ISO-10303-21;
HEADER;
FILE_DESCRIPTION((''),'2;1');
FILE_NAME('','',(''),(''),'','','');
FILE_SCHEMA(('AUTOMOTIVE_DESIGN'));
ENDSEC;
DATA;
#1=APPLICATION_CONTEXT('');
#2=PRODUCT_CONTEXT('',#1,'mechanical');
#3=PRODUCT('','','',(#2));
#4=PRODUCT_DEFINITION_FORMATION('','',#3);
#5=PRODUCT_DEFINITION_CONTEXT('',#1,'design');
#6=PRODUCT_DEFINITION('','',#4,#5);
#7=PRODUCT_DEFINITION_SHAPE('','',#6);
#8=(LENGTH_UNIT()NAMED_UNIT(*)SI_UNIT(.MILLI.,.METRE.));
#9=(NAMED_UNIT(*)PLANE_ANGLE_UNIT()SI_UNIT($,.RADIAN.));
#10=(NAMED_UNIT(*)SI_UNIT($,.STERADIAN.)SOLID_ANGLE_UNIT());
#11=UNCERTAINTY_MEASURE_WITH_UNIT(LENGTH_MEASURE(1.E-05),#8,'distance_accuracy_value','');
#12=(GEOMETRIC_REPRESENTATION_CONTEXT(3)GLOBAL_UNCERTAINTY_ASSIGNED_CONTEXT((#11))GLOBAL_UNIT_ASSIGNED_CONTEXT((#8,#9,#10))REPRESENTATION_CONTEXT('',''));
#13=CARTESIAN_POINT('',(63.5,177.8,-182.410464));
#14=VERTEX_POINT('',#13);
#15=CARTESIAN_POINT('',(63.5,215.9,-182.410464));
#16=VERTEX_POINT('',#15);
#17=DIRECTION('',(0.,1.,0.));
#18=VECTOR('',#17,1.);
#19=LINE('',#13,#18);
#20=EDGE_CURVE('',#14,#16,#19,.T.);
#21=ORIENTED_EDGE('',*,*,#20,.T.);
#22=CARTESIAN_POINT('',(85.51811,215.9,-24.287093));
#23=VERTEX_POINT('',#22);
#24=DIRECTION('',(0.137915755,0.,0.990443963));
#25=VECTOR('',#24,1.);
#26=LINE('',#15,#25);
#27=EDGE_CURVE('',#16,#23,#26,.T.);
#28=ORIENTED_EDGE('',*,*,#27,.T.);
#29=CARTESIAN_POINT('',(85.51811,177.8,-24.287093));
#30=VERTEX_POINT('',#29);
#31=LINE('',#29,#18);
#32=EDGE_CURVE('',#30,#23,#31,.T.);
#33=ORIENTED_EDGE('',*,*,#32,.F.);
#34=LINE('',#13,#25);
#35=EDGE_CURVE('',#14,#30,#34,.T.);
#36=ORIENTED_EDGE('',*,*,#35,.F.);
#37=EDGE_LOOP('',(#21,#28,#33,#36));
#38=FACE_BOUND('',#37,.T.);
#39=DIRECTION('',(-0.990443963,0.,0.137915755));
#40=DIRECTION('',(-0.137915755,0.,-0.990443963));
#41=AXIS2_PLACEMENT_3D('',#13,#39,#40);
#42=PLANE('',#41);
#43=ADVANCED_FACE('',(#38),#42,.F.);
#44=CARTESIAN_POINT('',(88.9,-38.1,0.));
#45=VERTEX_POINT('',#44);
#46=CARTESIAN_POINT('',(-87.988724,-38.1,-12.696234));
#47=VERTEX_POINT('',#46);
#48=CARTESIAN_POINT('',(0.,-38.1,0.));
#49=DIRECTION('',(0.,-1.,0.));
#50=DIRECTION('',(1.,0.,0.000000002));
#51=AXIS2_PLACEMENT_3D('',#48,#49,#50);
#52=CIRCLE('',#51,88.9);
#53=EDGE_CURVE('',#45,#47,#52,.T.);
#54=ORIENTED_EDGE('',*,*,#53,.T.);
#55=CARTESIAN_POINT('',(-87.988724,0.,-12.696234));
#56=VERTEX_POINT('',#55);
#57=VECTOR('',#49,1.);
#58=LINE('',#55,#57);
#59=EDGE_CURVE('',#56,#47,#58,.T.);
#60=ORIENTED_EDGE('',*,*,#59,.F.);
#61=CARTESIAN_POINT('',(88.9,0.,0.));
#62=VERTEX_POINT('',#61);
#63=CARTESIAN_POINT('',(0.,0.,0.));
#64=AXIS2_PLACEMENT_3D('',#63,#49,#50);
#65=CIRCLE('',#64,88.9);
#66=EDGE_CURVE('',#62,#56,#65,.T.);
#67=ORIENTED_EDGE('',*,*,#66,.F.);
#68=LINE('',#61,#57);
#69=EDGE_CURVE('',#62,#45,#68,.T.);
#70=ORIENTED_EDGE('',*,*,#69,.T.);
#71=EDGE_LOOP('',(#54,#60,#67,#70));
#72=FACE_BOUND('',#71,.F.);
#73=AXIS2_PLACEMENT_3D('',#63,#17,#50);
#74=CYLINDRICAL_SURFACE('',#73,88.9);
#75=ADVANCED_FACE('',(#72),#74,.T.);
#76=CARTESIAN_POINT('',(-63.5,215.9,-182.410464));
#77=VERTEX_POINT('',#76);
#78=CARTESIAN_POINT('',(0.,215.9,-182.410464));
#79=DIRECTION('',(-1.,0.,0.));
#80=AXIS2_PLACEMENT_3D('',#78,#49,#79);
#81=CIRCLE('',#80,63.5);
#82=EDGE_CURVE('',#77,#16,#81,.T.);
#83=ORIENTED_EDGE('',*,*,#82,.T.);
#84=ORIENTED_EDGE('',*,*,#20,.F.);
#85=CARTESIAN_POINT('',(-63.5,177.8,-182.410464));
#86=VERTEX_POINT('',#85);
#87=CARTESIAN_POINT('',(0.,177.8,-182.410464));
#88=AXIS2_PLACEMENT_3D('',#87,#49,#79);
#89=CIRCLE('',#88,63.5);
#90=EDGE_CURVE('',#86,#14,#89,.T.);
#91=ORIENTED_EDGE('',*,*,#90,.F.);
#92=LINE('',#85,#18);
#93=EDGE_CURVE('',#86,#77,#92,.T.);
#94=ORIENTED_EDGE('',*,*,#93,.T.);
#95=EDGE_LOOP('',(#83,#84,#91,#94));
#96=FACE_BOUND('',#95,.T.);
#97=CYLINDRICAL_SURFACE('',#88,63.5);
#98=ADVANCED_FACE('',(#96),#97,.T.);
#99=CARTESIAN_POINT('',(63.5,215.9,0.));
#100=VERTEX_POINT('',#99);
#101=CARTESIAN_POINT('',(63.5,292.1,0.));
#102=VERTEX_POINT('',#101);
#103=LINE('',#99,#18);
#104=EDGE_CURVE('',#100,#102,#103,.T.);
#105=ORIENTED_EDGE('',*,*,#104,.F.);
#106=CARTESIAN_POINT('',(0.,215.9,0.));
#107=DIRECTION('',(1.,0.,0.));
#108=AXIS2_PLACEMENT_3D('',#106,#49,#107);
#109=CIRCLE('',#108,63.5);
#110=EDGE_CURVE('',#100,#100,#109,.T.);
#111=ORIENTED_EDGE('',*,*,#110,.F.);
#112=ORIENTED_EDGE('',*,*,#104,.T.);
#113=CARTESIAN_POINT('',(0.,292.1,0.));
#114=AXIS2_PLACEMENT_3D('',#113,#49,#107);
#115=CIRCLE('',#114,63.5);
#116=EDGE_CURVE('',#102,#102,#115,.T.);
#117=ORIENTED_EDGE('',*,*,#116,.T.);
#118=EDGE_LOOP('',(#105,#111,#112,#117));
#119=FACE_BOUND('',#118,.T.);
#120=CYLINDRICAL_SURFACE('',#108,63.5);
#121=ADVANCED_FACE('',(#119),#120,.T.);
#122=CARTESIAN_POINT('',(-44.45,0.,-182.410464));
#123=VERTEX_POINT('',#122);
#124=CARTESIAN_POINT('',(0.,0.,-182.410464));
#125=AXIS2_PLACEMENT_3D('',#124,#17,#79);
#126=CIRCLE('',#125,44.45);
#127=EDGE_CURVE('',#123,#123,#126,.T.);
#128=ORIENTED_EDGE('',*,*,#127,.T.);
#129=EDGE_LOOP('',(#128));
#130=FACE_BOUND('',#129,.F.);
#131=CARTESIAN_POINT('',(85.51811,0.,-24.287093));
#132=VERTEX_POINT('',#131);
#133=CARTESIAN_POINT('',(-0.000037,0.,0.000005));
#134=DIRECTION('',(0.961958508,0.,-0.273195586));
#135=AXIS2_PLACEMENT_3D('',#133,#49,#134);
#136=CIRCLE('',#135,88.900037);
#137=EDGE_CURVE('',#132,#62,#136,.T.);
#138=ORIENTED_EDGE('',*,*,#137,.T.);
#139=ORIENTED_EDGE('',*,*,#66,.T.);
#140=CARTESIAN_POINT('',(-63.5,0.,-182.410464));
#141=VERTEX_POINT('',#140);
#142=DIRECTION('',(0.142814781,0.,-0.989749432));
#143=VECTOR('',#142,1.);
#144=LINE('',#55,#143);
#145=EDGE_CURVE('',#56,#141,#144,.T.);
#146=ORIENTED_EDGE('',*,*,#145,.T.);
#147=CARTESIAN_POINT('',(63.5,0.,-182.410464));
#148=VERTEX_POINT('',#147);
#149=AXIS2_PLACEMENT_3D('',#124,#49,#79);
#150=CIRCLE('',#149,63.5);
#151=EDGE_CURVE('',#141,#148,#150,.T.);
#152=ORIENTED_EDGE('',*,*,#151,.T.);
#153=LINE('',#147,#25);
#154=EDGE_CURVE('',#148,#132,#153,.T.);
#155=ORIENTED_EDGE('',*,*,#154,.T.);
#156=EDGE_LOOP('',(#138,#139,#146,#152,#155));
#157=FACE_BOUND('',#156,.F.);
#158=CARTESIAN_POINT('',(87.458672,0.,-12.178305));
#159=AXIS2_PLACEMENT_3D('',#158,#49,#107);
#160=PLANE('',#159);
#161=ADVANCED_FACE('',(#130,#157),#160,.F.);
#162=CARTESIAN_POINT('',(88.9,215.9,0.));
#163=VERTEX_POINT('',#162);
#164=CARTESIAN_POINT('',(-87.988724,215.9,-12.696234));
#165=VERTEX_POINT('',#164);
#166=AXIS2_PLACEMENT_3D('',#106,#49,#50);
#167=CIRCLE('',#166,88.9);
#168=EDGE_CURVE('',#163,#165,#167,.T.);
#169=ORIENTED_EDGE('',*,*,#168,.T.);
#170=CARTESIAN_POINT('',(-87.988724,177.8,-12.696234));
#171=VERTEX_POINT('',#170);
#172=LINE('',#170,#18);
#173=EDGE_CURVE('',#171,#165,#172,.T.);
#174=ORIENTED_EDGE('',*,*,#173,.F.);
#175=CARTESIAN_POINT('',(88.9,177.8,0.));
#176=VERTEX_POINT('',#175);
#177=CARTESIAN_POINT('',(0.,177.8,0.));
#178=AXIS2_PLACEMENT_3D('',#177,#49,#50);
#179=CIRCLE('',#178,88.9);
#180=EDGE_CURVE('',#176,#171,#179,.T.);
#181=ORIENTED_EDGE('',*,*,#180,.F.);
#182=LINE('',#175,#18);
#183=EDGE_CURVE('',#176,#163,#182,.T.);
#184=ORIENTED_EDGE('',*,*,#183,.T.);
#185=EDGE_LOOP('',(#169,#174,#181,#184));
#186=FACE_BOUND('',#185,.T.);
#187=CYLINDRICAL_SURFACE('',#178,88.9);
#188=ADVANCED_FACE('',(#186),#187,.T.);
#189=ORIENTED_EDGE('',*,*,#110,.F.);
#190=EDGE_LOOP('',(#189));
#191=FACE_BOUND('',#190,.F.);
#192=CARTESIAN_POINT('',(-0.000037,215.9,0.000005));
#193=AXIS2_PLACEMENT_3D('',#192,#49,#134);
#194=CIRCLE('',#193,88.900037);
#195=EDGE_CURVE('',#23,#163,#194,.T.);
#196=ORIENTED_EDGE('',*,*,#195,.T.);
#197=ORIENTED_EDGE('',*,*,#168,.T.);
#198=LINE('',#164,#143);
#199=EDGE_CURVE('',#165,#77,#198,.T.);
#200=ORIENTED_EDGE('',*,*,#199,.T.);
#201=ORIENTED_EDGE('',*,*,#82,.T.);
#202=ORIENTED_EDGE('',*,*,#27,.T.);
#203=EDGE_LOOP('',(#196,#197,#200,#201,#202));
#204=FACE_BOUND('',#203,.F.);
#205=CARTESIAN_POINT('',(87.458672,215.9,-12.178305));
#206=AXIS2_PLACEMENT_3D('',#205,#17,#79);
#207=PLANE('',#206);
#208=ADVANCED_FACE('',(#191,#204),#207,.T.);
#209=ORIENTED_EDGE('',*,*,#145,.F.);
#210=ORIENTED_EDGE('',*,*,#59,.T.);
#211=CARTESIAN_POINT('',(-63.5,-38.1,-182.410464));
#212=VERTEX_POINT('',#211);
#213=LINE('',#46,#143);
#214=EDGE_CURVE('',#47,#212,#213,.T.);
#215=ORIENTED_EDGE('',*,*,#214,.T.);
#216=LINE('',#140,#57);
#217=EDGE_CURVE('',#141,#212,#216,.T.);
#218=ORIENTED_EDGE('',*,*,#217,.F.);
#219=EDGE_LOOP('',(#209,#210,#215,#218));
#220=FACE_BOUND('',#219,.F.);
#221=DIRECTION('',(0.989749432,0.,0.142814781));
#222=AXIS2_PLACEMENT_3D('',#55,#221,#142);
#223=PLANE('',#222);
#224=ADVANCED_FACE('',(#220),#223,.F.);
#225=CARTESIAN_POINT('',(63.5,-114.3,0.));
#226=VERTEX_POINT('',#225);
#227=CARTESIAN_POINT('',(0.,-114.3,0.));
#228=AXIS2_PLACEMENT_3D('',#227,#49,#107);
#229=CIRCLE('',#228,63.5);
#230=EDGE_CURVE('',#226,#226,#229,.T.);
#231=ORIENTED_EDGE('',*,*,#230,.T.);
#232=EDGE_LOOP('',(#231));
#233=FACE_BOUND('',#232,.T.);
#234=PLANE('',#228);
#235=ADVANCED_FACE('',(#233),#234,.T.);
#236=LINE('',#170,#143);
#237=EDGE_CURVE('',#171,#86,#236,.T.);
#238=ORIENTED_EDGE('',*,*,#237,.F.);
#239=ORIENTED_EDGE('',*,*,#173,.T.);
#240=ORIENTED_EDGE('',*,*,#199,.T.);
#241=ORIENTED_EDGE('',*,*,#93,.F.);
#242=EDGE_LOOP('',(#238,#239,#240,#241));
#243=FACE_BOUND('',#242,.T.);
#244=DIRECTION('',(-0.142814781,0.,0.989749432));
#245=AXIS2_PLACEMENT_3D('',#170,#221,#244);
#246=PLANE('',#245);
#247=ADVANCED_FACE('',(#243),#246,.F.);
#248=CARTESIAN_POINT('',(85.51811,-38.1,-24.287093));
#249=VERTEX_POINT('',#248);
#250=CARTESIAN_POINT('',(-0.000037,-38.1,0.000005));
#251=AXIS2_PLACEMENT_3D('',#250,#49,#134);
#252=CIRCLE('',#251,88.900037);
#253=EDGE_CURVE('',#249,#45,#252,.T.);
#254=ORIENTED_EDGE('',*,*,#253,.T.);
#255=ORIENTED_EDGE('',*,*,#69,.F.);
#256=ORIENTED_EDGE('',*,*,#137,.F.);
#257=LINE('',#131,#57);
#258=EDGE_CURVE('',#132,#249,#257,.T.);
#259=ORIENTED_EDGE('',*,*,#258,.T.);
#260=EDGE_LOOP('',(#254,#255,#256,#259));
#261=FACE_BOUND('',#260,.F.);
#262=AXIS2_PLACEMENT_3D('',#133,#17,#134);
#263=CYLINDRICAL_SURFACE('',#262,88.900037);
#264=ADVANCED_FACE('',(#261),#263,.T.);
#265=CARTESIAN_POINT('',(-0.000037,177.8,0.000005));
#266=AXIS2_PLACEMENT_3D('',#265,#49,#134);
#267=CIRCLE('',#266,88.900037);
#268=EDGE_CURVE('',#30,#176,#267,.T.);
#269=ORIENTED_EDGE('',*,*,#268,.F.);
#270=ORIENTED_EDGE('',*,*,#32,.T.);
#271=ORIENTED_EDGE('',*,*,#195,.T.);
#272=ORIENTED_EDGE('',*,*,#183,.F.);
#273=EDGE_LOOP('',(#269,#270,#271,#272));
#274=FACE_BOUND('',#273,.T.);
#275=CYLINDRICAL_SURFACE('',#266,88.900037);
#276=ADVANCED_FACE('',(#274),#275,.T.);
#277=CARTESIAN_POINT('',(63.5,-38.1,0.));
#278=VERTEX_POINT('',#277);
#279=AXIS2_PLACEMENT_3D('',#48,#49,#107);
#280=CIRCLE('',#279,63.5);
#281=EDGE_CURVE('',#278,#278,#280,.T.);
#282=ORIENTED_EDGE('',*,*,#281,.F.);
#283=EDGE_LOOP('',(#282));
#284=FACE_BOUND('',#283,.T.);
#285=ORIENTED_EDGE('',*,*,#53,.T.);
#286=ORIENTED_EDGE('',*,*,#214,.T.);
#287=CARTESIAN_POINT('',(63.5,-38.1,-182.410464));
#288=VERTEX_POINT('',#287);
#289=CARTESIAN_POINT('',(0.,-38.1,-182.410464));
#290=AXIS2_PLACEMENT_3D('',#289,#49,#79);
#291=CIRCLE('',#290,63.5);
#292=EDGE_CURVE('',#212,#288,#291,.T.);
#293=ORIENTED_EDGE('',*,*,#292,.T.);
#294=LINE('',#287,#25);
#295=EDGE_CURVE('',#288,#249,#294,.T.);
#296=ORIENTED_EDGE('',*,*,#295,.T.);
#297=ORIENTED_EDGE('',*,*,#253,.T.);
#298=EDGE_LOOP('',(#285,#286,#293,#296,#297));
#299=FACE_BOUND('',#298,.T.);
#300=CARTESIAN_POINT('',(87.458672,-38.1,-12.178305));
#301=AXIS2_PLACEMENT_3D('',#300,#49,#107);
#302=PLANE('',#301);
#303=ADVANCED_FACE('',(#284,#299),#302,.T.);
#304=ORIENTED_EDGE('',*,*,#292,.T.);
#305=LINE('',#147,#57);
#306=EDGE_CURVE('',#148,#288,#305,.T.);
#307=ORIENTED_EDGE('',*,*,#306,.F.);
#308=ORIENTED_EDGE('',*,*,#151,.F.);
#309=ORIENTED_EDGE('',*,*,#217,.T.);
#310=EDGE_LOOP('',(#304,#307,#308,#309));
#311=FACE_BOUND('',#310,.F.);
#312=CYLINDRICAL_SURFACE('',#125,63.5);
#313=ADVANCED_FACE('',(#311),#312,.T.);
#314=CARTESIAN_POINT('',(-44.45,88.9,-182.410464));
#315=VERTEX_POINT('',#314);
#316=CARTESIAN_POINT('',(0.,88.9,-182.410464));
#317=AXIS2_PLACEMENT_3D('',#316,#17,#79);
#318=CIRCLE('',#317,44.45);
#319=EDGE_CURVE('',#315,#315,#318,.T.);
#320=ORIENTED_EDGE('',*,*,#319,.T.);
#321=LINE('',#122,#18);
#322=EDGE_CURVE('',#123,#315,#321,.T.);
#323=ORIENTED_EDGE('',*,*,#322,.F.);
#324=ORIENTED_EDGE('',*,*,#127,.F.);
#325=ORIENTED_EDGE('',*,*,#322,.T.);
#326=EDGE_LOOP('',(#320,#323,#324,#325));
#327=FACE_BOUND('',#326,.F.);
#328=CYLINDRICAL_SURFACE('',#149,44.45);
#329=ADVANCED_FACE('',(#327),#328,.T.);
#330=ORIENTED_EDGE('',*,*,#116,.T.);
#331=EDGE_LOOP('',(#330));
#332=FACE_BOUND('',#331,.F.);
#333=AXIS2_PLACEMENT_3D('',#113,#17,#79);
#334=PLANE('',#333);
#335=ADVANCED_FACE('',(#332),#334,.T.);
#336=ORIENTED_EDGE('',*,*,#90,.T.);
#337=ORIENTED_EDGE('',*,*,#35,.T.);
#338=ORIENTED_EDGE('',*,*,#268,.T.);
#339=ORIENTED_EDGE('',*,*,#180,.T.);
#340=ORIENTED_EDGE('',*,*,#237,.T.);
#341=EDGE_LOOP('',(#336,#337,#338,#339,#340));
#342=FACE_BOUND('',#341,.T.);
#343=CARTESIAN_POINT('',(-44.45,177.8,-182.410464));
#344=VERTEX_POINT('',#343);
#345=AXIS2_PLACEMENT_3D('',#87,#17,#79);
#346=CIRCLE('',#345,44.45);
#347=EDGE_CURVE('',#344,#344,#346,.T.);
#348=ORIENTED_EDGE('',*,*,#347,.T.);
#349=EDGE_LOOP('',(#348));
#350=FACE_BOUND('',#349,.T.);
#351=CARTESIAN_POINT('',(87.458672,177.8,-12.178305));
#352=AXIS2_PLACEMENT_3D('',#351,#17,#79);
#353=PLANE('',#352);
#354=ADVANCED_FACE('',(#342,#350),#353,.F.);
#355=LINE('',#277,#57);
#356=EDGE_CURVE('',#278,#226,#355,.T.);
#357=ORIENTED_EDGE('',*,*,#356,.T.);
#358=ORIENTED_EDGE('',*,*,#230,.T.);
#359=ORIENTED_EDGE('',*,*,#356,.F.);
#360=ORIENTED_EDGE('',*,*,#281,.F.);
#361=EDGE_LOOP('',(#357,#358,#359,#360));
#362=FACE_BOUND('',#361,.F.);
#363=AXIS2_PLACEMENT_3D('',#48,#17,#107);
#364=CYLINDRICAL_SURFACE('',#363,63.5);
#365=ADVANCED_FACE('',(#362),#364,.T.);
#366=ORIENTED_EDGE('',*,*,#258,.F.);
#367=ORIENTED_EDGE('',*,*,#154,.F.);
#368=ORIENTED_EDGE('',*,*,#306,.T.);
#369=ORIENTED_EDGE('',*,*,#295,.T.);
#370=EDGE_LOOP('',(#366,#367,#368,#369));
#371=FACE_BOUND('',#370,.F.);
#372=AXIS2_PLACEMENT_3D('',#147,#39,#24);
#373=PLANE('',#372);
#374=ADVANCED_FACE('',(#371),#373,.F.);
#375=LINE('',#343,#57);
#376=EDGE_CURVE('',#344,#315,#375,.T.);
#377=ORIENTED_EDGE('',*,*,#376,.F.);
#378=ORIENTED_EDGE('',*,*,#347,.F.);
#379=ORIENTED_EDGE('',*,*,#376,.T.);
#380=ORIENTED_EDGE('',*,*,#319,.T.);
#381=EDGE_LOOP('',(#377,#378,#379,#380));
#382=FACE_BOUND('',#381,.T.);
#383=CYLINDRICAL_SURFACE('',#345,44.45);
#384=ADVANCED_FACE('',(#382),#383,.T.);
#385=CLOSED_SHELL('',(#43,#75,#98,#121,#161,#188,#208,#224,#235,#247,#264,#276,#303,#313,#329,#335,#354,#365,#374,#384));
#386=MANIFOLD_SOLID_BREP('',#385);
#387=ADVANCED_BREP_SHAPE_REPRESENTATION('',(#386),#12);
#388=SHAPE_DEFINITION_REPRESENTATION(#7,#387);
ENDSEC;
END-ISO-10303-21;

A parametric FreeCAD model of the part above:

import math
import FreeCAD as App
import Part
import Sketcher

V = App.Vector
Q = App.Units.Quantity

doc = App.newDocument("Part")
body = doc.addObject("PartDesign::Body", "Body")

sketch1 = body.newObject("Sketcher::SketchObject", "Sketch")
sketch1.AttachmentSupport = (doc.getObject("XZ_Plane"), [""])
sketch1.MapMode = "FlatFace"
sketch1.addGeometry([
    Part.ArcOfCircle(Part.Circle(V(0, 0, 0), V(0, 0, 1), 89), math.radians(-15.85), math.radians(0)),
    Part.ArcOfCircle(Part.Circle(V(0, 0, 0), V(0, 0, 1), 89), math.radians(0), math.radians(188)),
    Part.LineSegment(V(-88, -13, 0), V(-64, -182, 0)),
    Part.ArcOfCircle(Part.Circle(V(0, -182, 0), V(0, 0, 1), 64), math.radians(180), math.radians(360)),
    Part.LineSegment(V(64, -182, 0), V(86, -24, 0)),
], False)
sketch1.addConstraint([
    Sketcher.Constraint("Tangent", 0, 2, 1, 1),
    Sketcher.Constraint("Tangent", 1, 2, 2, 1),
    Sketcher.Constraint("Coincident", 2, 2, 3, 1),
    Sketcher.Constraint("Coincident", 3, 2, 4, 1),
    Sketcher.Constraint("Coincident", 4, 2, 0, 1),
    Sketcher.Constraint("Coincident", 1, 3, -1, 1),
    Sketcher.Constraint("Symmetric", 2, 2, 3, 2, -2),
    Sketcher.Constraint("PointOnObject", 0, 2, -1),
    Sketcher.Constraint("Horizontal", 3, 3, 2, 2),
    Sketcher.Constraint("Radius", 1, Q("3.5 in")),
    Sketcher.Constraint("Radius", 3, Q("2.5 in")),
    Sketcher.Constraint("Radius", 0, Q("88.900037 mm")),
    Sketcher.Constraint("DistanceX", -1, 1, 4, 2, Q("85.51811 mm")),
    Sketcher.Constraint("DistanceY", 3, 3, 0, 3, Q("182.410469 mm")),
])
pad1 = body.newObject("PartDesign::Pad", "Pad")
pad1.Profile = sketch1
pad1.Length = Q("1.5 in")

sketch2 = body.newObject("Sketcher::SketchObject", "Sketch001")
sketch2.AttachmentSupport = (doc.getObject("XZ_Plane"), [""])
sketch2.MapMode = "FlatFace"
sketch2.AttachmentOffset = App.Placement(V(0, 0, 1.5 * 25.4), App.Rotation())
sketch2.addGeometry(Part.Circle(V(0, 0, 0), V(0, 0, 1), 64), False)
sketch2.addConstraint([
    Sketcher.Constraint("Coincident", 0, 3, -1, 1),
    Sketcher.Constraint("Diameter", 0, Q("5 in")),
])
pad2 = body.newObject("PartDesign::Pad", "Pad001")
pad2.Profile = sketch2
pad2.Length = Q("3 in")

sketch3 = body.newObject("Sketcher::SketchObject", "Sketch002")
sketch3.AttachmentSupport = (doc.getObject("XZ_Plane"), [""])
sketch3.MapMode = "FlatFace"
sketch3.addGeometry(Part.Circle(V(0, -182, 0), V(0, 0, 1), 44), False)
sketch3.addConstraint([
    Sketcher.Constraint("PointOnObject", 0, 3, -2),
    Sketcher.Constraint("Diameter", 0, Q("3.5 in")),
    Sketcher.Constraint("DistanceY", 0, 3, -1, 1, Q("182.410464 mm")),
])
pad3 = body.newObject("PartDesign::Pad", "Pad002")
pad3.Profile = sketch3
pad3.Length = Q("3.5 in")
pad3.Reversed = True
body2 = doc.addObject("PartDesign::Body", "Body001")
doc.recompute()

body2.BaseFeature = body
doc.recompute()

mirroring = doc.addObject("Part::Mirroring", "Mirroring")
mirroring.Source = body
mirroring.Base = V(0, 88.9, -182.410464)
mirroring.Normal = V(0, 1, 0)
body3 = doc.addObject("PartDesign::Body", "Body002")
body3.BaseFeature = mirroring
boolean = body2.newObject("PartDesign::Boolean", "Boolean")
boolean.Type = "Fuse"
boolean.addObjects([body3])
doc.recompute()
mirroring.Visibility = False

doc.recompute()
